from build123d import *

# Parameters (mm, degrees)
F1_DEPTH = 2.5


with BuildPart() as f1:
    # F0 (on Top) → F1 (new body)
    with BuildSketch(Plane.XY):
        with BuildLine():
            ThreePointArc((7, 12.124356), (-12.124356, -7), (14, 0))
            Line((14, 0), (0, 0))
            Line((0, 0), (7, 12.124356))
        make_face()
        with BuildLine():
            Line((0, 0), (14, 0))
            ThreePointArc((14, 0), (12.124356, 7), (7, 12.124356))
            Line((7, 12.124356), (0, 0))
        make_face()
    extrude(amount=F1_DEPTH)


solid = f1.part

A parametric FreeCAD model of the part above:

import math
import FreeCAD as App
import Part
import Sketcher

doc = App.newDocument("Part")
body = doc.addObject("PartDesign::Body", "Body")

# Sketch on XY plane
sketch1 = doc.addObject("Sketcher::SketchObject", "Sketch")
body.addObject(sketch1)
sketch1.AttachmentSupport = (doc.XY_Plane, [""])
sketch1.MapMode = "FlatFace"
sketch1.addGeometry(Part.ArcOfCircle(Part.Circle(App.Vector(0, 0, 0), App.Vector(0, 0, 1), 14), math.radians(59.999999), math.radians(359.999999)), False)
sketch1.addGeometry(Part.ArcOfCircle(Part.Circle(App.Vector(0.000001, 0.000001, 0), App.Vector(0, 0, 1), 13.999999), math.radians(-0.000003), math.radians(60.000002)), False)
sketch1.addConstraint(Sketcher.Constraint("Tangent", 0, 1, 1, 2))
sketch1.addConstraint(Sketcher.Constraint("Coincident", 1, 1, 0, 2))
sketch1.addConstraint(Sketcher.Constraint("Coincident", 0, 3, -1, 1))
sketch1.addConstraint(Sketcher.Constraint("PointOnObject", 1, 1, -1))
sketch1.addConstraint(Sketcher.Constraint("Radius", 0, 14.0))
sketch1.addConstraint(Sketcher.Constraint("DistanceX", -1, 1, 0, 1, 7.0))
pad1 = doc.addObject("PartDesign::Pad", "Pad")
body.addObject(pad1)
pad1.Profile = sketch1
pad1.Length = 2.5

doc.recompute()
